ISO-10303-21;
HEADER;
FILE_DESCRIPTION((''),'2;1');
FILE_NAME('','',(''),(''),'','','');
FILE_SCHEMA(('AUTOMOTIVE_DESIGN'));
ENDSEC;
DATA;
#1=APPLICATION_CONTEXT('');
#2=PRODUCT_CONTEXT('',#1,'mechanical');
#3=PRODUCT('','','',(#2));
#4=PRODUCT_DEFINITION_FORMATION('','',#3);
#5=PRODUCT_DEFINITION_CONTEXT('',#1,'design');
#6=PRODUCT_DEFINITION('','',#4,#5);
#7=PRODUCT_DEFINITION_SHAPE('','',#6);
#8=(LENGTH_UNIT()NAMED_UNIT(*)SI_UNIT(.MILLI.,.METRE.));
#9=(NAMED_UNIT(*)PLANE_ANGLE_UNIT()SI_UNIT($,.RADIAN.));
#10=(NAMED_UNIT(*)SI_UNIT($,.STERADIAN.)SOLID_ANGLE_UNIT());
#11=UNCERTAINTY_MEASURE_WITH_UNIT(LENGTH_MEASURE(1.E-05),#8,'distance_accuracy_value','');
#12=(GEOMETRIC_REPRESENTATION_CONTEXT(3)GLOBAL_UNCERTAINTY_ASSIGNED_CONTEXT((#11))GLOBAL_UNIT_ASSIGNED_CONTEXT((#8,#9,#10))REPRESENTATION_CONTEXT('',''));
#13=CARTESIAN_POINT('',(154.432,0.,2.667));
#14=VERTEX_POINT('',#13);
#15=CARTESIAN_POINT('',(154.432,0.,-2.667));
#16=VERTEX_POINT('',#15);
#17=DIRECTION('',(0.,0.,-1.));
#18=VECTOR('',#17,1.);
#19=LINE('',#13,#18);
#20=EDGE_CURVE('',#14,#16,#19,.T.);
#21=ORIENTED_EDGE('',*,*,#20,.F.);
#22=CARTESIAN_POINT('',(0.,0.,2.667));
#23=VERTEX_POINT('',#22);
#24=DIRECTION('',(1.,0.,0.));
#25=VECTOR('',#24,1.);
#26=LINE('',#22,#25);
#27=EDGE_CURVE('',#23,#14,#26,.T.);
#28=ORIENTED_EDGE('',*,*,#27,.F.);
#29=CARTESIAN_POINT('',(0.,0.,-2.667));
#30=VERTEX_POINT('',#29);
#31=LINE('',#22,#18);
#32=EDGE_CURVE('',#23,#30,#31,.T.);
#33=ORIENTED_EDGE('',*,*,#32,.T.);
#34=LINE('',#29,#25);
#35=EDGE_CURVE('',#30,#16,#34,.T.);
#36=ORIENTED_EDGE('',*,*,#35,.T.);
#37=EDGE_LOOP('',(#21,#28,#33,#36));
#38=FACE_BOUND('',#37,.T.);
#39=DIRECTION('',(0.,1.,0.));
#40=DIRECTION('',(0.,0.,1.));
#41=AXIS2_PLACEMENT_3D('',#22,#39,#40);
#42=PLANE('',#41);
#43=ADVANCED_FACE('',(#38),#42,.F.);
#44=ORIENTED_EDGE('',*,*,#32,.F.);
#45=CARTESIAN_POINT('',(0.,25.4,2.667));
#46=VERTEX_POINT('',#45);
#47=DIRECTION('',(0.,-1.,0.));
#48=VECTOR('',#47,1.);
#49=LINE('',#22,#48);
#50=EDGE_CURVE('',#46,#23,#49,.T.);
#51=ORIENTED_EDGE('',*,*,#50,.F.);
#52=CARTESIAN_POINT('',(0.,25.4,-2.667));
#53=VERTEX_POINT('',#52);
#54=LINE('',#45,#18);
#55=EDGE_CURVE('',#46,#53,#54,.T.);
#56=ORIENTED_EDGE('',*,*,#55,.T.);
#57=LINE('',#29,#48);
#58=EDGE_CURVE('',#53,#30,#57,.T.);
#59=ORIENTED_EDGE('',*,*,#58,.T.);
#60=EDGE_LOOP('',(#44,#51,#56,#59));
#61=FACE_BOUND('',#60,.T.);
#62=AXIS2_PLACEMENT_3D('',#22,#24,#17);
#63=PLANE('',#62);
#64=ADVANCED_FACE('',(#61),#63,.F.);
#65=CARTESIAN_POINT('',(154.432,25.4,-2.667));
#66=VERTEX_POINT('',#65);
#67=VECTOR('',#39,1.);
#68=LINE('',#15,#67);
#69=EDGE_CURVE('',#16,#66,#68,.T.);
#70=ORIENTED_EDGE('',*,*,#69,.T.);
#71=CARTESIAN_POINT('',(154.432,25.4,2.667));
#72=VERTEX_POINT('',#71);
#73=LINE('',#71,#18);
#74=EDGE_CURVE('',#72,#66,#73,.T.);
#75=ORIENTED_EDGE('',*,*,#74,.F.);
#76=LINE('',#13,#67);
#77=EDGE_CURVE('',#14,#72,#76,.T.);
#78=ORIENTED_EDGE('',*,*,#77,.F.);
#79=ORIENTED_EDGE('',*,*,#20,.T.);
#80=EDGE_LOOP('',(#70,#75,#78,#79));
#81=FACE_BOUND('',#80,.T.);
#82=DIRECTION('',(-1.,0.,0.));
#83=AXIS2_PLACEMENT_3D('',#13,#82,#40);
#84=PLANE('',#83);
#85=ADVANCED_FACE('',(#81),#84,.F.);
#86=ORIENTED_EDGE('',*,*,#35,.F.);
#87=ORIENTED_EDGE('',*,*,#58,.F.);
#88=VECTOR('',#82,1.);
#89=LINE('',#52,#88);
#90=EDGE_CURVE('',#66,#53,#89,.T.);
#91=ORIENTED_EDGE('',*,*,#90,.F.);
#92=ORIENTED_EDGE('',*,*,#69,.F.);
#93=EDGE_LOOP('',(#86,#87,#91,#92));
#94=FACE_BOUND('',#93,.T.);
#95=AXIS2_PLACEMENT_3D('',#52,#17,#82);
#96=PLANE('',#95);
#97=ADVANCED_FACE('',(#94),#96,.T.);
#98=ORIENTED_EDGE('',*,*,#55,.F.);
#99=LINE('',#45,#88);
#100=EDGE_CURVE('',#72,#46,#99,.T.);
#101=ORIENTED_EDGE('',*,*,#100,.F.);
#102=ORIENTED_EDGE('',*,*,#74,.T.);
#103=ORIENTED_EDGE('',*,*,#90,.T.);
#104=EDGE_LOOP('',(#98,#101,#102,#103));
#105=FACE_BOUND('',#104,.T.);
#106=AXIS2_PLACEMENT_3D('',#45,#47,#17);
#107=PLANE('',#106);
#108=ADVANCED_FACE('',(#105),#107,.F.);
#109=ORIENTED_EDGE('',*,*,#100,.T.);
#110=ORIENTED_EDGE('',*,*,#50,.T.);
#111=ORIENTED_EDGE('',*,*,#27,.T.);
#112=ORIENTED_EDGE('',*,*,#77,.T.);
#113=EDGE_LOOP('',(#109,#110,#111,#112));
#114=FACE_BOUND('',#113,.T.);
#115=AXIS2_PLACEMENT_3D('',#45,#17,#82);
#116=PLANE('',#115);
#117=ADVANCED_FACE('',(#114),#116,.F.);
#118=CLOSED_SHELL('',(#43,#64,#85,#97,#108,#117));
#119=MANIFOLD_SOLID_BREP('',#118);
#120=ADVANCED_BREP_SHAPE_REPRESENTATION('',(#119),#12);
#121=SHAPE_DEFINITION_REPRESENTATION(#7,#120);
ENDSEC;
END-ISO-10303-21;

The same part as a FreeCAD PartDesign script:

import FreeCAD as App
import Part
import Sketcher
from FreeCAD import Vector
Q = App.Units.Quantity

doc = App.newDocument("Part")
params = doc.addObject("Spreadsheet::Sheet", "Params")
for row, (alias, value) in enumerate([
    ("sketch1_height", "1 in"),
    ("sketch1_width", "6.08 in"),
    ("pad1_length", "0.21 in"),
], start=1):
    params.set(f"A{row}", alias)
    params.set(f"B{row}", "=" + value)
    params.setAlias(f"B{row}", alias)

body = doc.addObject("PartDesign::Body", "Body")

# Sketch on XY plane
sketch1 = body.newObject("Sketcher::SketchObject", "Sketch")
sketch1.AttachmentSupport = (doc.getObject("XY_Plane"), [""])
sketch1.MapMode = "FlatFace"
sketch1.addGeometry([
    Part.LineSegment(Vector(0, 25.4, 0), Vector(0, 0, 0)),
    Part.LineSegment(Vector(0, 0, 0), Vector(154.432, 0, 0)),
    Part.LineSegment(Vector(154.432, 0, 0), Vector(154.432, 25.4, 0)),
    Part.LineSegment(Vector(154.432, 25.4, 0), Vector(0, 25.4, 0)),
], False)
sketch1.addConstraint([
    Sketcher.Constraint("Coincident", 0, 2, 1, 1),
    Sketcher.Constraint("Coincident", 1, 2, 2, 1),
    Sketcher.Constraint("Coincident", 2, 2, 3, 1),
    Sketcher.Constraint("Coincident", 3, 2, 0, 1),
    Sketcher.Constraint("Vertical", 0),
    Sketcher.Constraint("Horizontal", 1),
    Sketcher.Constraint("Vertical", 2),
    Sketcher.Constraint("Horizontal", 3),
    Sketcher.Constraint("Coincident", 0, 2, -1, 1),
    Sketcher.Constraint("DistanceY", 0, 2, 0, 1, Q("1 in")),
    Sketcher.Constraint("DistanceX", 1, 1, 1, 2, Q("6.08 in")),
])
sketch1.setExpression("Constraints[9]", "Params.sketch1_height")
sketch1.setExpression("Constraints[10]", "Params.sketch1_width")
pad1 = body.newObject("PartDesign::Pad", "Pad")
pad1.Profile = sketch1
pad1.setExpression("Length", "Params.pad1_length")
pad1.Midplane = True

doc.recompute()
